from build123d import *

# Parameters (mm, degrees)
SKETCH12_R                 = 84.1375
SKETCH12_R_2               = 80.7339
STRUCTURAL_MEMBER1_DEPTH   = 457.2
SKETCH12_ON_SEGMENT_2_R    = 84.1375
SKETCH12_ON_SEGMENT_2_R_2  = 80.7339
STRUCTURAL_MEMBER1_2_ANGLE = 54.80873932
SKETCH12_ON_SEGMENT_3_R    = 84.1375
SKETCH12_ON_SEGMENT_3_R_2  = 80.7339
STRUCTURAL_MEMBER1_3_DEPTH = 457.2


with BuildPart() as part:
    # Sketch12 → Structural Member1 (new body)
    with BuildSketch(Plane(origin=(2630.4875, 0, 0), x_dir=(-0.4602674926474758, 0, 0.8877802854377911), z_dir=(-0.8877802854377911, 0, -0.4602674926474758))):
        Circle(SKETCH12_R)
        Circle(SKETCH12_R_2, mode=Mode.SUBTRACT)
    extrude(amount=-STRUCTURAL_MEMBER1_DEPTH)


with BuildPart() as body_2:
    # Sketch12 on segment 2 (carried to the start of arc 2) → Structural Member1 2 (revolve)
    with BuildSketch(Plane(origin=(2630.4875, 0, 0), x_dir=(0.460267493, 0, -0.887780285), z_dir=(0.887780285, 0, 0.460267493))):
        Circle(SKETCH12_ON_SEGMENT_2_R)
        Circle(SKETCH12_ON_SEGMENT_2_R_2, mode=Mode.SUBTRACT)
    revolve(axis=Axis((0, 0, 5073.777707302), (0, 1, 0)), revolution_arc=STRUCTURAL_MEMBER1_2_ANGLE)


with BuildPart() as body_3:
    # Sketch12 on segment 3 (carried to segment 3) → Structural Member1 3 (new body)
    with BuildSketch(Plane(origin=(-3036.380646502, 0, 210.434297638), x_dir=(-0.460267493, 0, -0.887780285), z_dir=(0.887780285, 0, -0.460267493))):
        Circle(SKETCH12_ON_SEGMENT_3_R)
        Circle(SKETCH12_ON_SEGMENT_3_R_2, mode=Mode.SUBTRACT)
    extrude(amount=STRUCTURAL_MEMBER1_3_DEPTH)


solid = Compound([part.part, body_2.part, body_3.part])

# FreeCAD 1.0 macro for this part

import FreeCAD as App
import Part
import Sketcher
Q = App.Units.Quantity

doc = App.newDocument("Part")
body = doc.addObject("PartDesign::Body", "Body")

# Sketch on an angled plane
sketch1 = body.newObject("Sketcher::SketchObject", "Sketch")
sketch1.Placement = App.Placement(App.Vector(2630.4875, 0, 0), App.Rotation(App.Vector(-0.460267493, 0, 0.887780285), App.Vector(0, 1, 0), App.Vector(-0.887780285, 0, -0.460267493), "ZXY"))
sketch1.addGeometry(Part.Circle(App.Vector(0, 0, 0), App.Vector(0, 0, 1), 84), False)
sketch1.addGeometry(Part.Circle(App.Vector(0, 0, 0), App.Vector(0, 0, 1), 81), False)
sketch1.addConstraint(Sketcher.Constraint("Coincident", 0, 3, -1, 1))
sketch1.addConstraint(Sketcher.Constraint("Coincident", 1, 3, -1, 1))
sketch1.addConstraint(Sketcher.Constraint("Diameter", 0, Q("6.625 in")))
sketch1.addConstraint(Sketcher.Constraint("Diameter", 1, Q("6.357 in")))
pad1 = body.newObject("PartDesign::Pad", "Pad")
pad1.Profile = sketch1
pad1.Length = Q("18 in")
pad1.Reversed = True
body2 = doc.addObject("PartDesign::Body", "Body001")

# Sketch on an angled plane
sketch2 = body2.newObject("Sketcher::SketchObject", "Sketch001")
sketch2.Placement = App.Placement(App.Vector(2630.4875, 0, 0), App.Rotation(App.Vector(0.460267493, 0, -0.887780285), App.Vector(0, 1, 0), App.Vector(0.887780285, 0, 0.460267493), "ZXY"))
sketch2.addGeometry(Part.Circle(App.Vector(0, 0, 0), App.Vector(0, 0, 1), 84), False)
sketch2.addGeometry(Part.Circle(App.Vector(0, 0, 0), App.Vector(0, 0, 1), 81), False)
sketch2.addGeometry(Part.LineSegment(App.Vector(-5715, 0, 0), App.Vector(-5715, 10, 0)), True)  # axis
sketch2.addConstraint(Sketcher.Constraint("Vertical", 2))
sketch2.addConstraint(Sketcher.Constraint("Coincident", 0, 3, -1, 1))
sketch2.addConstraint(Sketcher.Constraint("Coincident", 1, 3, -1, 1))
sketch2.addConstraint(Sketcher.Constraint("PointOnObject", 2, 1, -1))
sketch2.addConstraint(Sketcher.Constraint("Diameter", 0, Q("6.625 in")))
sketch2.addConstraint(Sketcher.Constraint("Diameter", 1, Q("6.357 in")))
sketch2.addConstraint(Sketcher.Constraint("DistanceY", 2, 1, 2, 2, 10.0))
sketch2.addConstraint(Sketcher.Constraint("DistanceX", 2, 1, -1, 1, 5715.127706))
revolution = body2.newObject("PartDesign::Revolution", "Revolution")
revolution.Profile = sketch2
revolution.ReferenceAxis = (sketch2, ["Axis0"])
revolution.Angle = 54.808739
body3 = doc.addObject("PartDesign::Body", "Body002")

# Sketch on an angled plane
sketch3 = body3.newObject("Sketcher::SketchObject", "Sketch002")
sketch3.Placement = App.Placement(App.Vector(-3036.380647, 0, 210.434298), App.Rotation(App.Vector(-0.460267493, 0, -0.887780285), App.Vector(0, 1, 0), App.Vector(0.887780285, 0, -0.460267493), "ZXY"))
sketch3.addGeometry(Part.Circle(App.Vector(0, 0, 0), App.Vector(0, 0, 1), 84), False)
sketch3.addGeometry(Part.Circle(App.Vector(0, 0, 0), App.Vector(0, 0, 1), 81), False)
sketch3.addConstraint(Sketcher.Constraint("Coincident", 0, 3, -1, 1))
sketch3.addConstraint(Sketcher.Constraint("Coincident", 1, 3, -1, 1))
sketch3.addConstraint(Sketcher.Constraint("Diameter", 0, Q("6.625 in")))
sketch3.addConstraint(Sketcher.Constraint("Diameter", 1, Q("6.357 in")))
pad2 = body3.newObject("PartDesign::Pad", "Pad001")
pad2.Profile = sketch3
pad2.Length = Q("18 in")

doc.recompute()
